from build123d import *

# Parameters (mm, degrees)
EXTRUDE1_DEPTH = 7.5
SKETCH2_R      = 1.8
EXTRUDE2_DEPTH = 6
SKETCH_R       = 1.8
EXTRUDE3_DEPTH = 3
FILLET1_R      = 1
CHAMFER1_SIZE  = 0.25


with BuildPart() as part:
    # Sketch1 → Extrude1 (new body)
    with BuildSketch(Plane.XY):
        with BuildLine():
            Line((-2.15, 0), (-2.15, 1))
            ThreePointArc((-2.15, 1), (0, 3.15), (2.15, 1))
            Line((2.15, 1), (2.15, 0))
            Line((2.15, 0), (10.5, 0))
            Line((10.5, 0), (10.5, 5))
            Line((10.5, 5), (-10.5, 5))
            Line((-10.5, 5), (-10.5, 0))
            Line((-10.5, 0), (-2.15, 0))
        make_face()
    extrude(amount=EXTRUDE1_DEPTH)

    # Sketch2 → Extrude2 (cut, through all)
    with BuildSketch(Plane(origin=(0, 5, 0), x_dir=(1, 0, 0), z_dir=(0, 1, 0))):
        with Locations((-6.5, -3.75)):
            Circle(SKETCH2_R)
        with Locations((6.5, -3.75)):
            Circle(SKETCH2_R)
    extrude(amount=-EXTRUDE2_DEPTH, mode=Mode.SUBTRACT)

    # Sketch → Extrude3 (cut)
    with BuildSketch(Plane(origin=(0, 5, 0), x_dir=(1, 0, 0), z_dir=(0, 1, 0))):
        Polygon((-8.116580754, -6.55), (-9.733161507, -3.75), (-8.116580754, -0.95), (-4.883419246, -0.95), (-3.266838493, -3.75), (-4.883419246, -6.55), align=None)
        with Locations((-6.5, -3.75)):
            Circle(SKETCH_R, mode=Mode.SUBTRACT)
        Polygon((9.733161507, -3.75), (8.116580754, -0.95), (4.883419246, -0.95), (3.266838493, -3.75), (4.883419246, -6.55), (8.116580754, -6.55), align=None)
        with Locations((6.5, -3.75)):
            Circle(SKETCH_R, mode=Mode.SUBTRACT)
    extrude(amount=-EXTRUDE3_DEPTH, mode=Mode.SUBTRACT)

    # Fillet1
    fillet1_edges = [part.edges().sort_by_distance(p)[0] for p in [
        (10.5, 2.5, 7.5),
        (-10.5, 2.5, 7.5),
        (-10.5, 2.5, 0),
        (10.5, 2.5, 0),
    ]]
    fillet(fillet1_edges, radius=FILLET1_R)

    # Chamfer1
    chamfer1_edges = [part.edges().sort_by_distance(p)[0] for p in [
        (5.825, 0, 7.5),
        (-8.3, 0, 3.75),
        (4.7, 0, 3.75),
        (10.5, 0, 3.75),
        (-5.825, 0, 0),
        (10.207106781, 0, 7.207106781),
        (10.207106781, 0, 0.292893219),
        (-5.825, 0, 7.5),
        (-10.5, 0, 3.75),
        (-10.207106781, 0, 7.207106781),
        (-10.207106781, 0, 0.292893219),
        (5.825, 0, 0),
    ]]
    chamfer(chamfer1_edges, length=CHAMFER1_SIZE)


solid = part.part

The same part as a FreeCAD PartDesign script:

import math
import FreeCAD as App
import Part
import Sketcher

V = App.Vector
Q = App.Units.Quantity


def edges_at(feature, points):
    """Names of the edges that pass closest to the given points."""
    edges = feature.Shape.Edges
    near = lambda p: min(range(len(edges)), key=lambda i: edges[i].distToShape(Part.Vertex(*p))[0])
    return sorted({f"Edge{near(p) + 1}" for p in points})

doc = App.newDocument("Part")
body = doc.addObject("PartDesign::Body", "Body")

# Sketch on XY plane
sketch1 = doc.addObject("Sketcher::SketchObject", "Sketch")
body.addObject(sketch1)
sketch1.AttachmentSupport = (doc.XY_Plane, [""])
sketch1.MapMode = "FlatFace"
sketch1.addGeometry(Part.LineSegment(V(-2.1, 0, 0), V(-2.1, 1, 0)), False)
sketch1.addGeometry(Part.ArcOfCircle(Part.Circle(V(0, 1, 0), V(0, 0, 1), 2.1), math.radians(0), math.radians(180)), False)
sketch1.addGeometry(Part.LineSegment(V(2.1, 1, 0), V(2.1, 0, 0)), False)
sketch1.addGeometry(Part.LineSegment(V(2.1, 0, 0), V(10.5, 0, 0)), False)
sketch1.addGeometry(Part.LineSegment(V(10.5, 0, 0), V(10.5, 5, 0)), False)
sketch1.addGeometry(Part.LineSegment(V(10.5, 5, 0), V(-10.5, 5, 0)), False)
sketch1.addGeometry(Part.LineSegment(V(-10.5, 5, 0), V(-10.5, 0, 0)), False)
sketch1.addGeometry(Part.LineSegment(V(-10.5, 0, 0), V(-2.1, 0, 0)), False)
sketch1.addConstraint(Sketcher.Constraint("Tangent", 0, 2, 1, 2))
sketch1.addConstraint(Sketcher.Constraint("Tangent", 1, 1, 2, 1))
sketch1.addConstraint(Sketcher.Constraint("Coincident", 2, 2, 3, 1))
sketch1.addConstraint(Sketcher.Constraint("Coincident", 3, 2, 4, 1))
sketch1.addConstraint(Sketcher.Constraint("Coincident", 4, 2, 5, 1))
sketch1.addConstraint(Sketcher.Constraint("Coincident", 5, 2, 6, 1))
sketch1.addConstraint(Sketcher.Constraint("Coincident", 6, 2, 7, 1))
sketch1.addConstraint(Sketcher.Constraint("Coincident", 7, 2, 0, 1))
sketch1.addConstraint(Sketcher.Constraint("Vertical", 0))
sketch1.addConstraint(Sketcher.Constraint("Vertical", 2))
sketch1.addConstraint(Sketcher.Constraint("Horizontal", 3))
sketch1.addConstraint(Sketcher.Constraint("Vertical", 4))
sketch1.addConstraint(Sketcher.Constraint("Horizontal", 5))
sketch1.addConstraint(Sketcher.Constraint("Vertical", 6))
sketch1.addConstraint(Sketcher.Constraint("Horizontal", 7))
sketch1.addConstraint(Sketcher.Constraint("Symmetric", 3, 2, 6, 2, -1, 1))
sketch1.addConstraint(Sketcher.Constraint("Symmetric", 2, 2, 7, 2, -2))
sketch1.addConstraint(Sketcher.Constraint("DistanceX", 5, 2, 5, 1, 21.0))
sketch1.addConstraint(Sketcher.Constraint("DistanceY", 0, 1, 0, 2, 1.0))
sketch1.addConstraint(Sketcher.Constraint("DistanceY", 4, 1, 4, 2, 5.0))
sketch1.addConstraint(Sketcher.Constraint("Radius", 1, 2.15))
pad1 = doc.addObject("PartDesign::Pad", "Pad")
body.addObject(pad1)
pad1.Profile = sketch1
pad1.Length = 7.5

# Sketch on XZ plane
sketch2 = doc.addObject("Sketcher::SketchObject", "Sketch001")
body.addObject(sketch2)
sketch2.AttachmentSupport = (doc.XZ_Plane, [""])
sketch2.MapMode = "FlatFace"
sketch2.AttachmentOffset = App.Placement(V(0, 0, -5), App.Rotation())
sketch2.addGeometry(Part.Circle(V(-6.5, 3.8, 0), V(0, 0, 1), 1.8), False)
sketch2.addGeometry(Part.Circle(V(6.5, 3.8, 0), V(0, 0, 1), 1.8), False)
sketch2.addConstraint(Sketcher.Constraint("Equal", 0, 1))
sketch2.addConstraint(Sketcher.Constraint("Symmetric", 0, 3, 1, 3, -2))
sketch2.addConstraint(Sketcher.Constraint("Diameter", 0, 3.6))
sketch2.addConstraint(Sketcher.Constraint("DistanceX", 0, 3, 1, 3, 13.0))
sketch2.addConstraint(Sketcher.Constraint("DistanceY", -1, 1, 0, 3, 3.75))
pocket1 = doc.addObject("PartDesign::Pocket", "Pocket")
body.addObject(pocket1)
pocket1.Profile = sketch2
pocket1.Type = "ThroughAll"
pocket1.Reversed = True

# Sketch on XZ plane
sketch3 = doc.addObject("Sketcher::SketchObject", "Sketch002")
body.addObject(sketch3)
sketch3.AttachmentSupport = (doc.XZ_Plane, [""])
sketch3.MapMode = "FlatFace"
sketch3.AttachmentOffset = App.Placement(V(0, 0, -5), App.Rotation())
sketch3.addGeometry(Part.LineSegment(V(-9.7, 3.8, 0), V(-8.1, 6.5, 0)), False)
sketch3.addGeometry(Part.LineSegment(V(-8.1, 6.5, 0), V(-4.9, 6.5, 0)), False)
sketch3.addGeometry(Part.LineSegment(V(-4.9, 6.5, 0), V(-3.3, 3.8, 0)), False)
sketch3.addGeometry(Part.LineSegment(V(-3.3, 3.8, 0), V(-4.9, 0.9, 0)), False)
sketch3.addGeometry(Part.LineSegment(V(-4.9, 0.9, 0), V(-8.1, 0.9, 0)), False)
sketch3.addGeometry(Part.LineSegment(V(-8.1, 0.9, 0), V(-9.7, 3.8, 0)), False)
sketch3.addGeometry(Part.Circle(V(-6.5, 3.8, 0), V(0, 0, 1), 1.8), False)
sketch3.addGeometry(Part.LineSegment(V(9.7, 3.8, 0), V(8.1, 0.9, 0)), False)
sketch3.addGeometry(Part.LineSegment(V(8.1, 0.9, 0), V(4.9, 0.9, 0)), False)
sketch3.addGeometry(Part.LineSegment(V(4.9, 0.9, 0), V(3.3, 3.8, 0)), False)
sketch3.addGeometry(Part.LineSegment(V(3.3, 3.8, 0), V(4.9, 6.5, 0)), False)
sketch3.addGeometry(Part.LineSegment(V(4.9, 6.5, 0), V(8.1, 6.5, 0)), False)
sketch3.addGeometry(Part.LineSegment(V(8.1, 6.5, 0), V(9.7, 3.8, 0)), False)
sketch3.addGeometry(Part.Circle(V(6.5, 3.8, 0), V(0, 0, 1), 1.8), False)
sketch3.addConstraint(Sketcher.Constraint("Coincident", 0, 2, 1, 1))
sketch3.addConstraint(Sketcher.Constraint("Coincident", 1, 2, 2, 1))
sketch3.addConstraint(Sketcher.Constraint("Coincident", 2, 2, 3, 1))
sketch3.addConstraint(Sketcher.Constraint("Coincident", 3, 2, 4, 1))
sketch3.addConstraint(Sketcher.Constraint("Coincident", 4, 2, 5, 1))
sketch3.addConstraint(Sketcher.Constraint("Coincident", 5, 2, 0, 1))
sketch3.addConstraint(Sketcher.Constraint("Coincident", 7, 2, 8, 1))
sketch3.addConstraint(Sketcher.Constraint("Coincident", 8, 2, 9, 1))
sketch3.addConstraint(Sketcher.Constraint("Coincident", 9, 2, 10, 1))
sketch3.addConstraint(Sketcher.Constraint("Coincident", 10, 2, 11, 1))
sketch3.addConstraint(Sketcher.Constraint("Coincident", 11, 2, 12, 1))
sketch3.addConstraint(Sketcher.Constraint("Coincident", 12, 2, 7, 1))
sketch3.addConstraint(Sketcher.Constraint("Horizontal", 1))
sketch3.addConstraint(Sketcher.Constraint("Horizontal", 4))
sketch3.addConstraint(Sketcher.Constraint("Horizontal", 8))
sketch3.addConstraint(Sketcher.Constraint("Horizontal", 11))
sketch3.addConstraint(Sketcher.Constraint("Equal", 6, 13))
sketch3.addConstraint(Sketcher.Constraint("Symmetric", 6, 3, 13, 3, -2))
sketch3.addConstraint(Sketcher.Constraint("Symmetric", 4, 2, 7, 2, -2))
sketch3.addConstraint(Sketcher.Constraint("Symmetric", 2, 2, 9, 2, -2))
sketch3.addConstraint(Sketcher.Constraint("Symmetric", 1, 2, 10, 2, -2))
sketch3.addConstraint(Sketcher.Constraint("Symmetric", 5, 2, 12, 2, -2))
sketch3.addConstraint(Sketcher.Constraint("Parallel", 0, 3))
sketch3.addConstraint(Sketcher.Constraint("Parallel", 2, 5))
sketch3.addConstraint(Sketcher.Constraint("Parallel", 3, 7))
sketch3.addConstraint(Sketcher.Constraint("Parallel", 5, 9))
sketch3.addConstraint(Sketcher.Constraint("Parallel", 9, 12))
sketch3.addConstraint(Sketcher.Constraint("Horizontal", 13, 3, 2, 2))
sketch3.addConstraint(Sketcher.Constraint("Horizontal", 2, 2, 5, 2))
sketch3.addConstraint(Sketcher.Constraint("Vertical", 1, 2, 3, 2))
sketch3.addConstraint(Sketcher.Constraint("Diameter", 6, 3.6))
sketch3.addConstraint(Sketcher.Constraint("Angle", 0, Q("60 deg")))
sketch3.addConstraint(Sketcher.Constraint("DistanceX", 6, 3, 13, 3, 13.0))
sketch3.addConstraint(Sketcher.Constraint("DistanceX", 3, 2, 7, 2, 13.0))
sketch3.addConstraint(Sketcher.Constraint("DistanceY", 6, 3, 0, 2, 2.8))
sketch3.addConstraint(Sketcher.Constraint("DistanceY", -1, 1, 6, 3, 3.75))
sketch3.addConstraint(Sketcher.Constraint("DistanceX", 1, 1, 1, 2, 3.233162))
pocket2 = doc.addObject("PartDesign::Pocket", "Pocket001")
body.addObject(pocket2)
pocket2.Profile = sketch3
pocket2.Length = 3
pocket2.Reversed = True
doc.recompute()

fillet = doc.addObject("PartDesign::Fillet", "Fillet")
body.addObject(fillet)
fillet.Base = (pocket2, edges_at(pocket2, [
    (10.5, 2.5, 7.5),
    (-10.5, 2.5, 7.5),
    (-10.5, 2.5, 0),
    (10.5, 2.5, 0),
]))
fillet.Radius = 1
doc.recompute()

chamfer = doc.addObject("PartDesign::Chamfer", "Chamfer")
body.addObject(chamfer)
chamfer.Base = (fillet, edges_at(fillet, [
    (5.825, 0, 7.5),
    (-8.3, 0, 3.75),
    (4.7, 0, 3.75),
    (10.5, 0, 3.75),
    (-5.825, 0, 0),
    (10.207, 0, 7.207),
    (10.207, 0, 0.293),
    (-5.825, 0, 7.5),
    (-10.5, 0, 3.75),
    (-10.207, 0, 7.207),
    (-10.207, 0, 0.293),
    (5.825, 0, 0),
]))
chamfer.Size = 0.25

doc.recompute()
